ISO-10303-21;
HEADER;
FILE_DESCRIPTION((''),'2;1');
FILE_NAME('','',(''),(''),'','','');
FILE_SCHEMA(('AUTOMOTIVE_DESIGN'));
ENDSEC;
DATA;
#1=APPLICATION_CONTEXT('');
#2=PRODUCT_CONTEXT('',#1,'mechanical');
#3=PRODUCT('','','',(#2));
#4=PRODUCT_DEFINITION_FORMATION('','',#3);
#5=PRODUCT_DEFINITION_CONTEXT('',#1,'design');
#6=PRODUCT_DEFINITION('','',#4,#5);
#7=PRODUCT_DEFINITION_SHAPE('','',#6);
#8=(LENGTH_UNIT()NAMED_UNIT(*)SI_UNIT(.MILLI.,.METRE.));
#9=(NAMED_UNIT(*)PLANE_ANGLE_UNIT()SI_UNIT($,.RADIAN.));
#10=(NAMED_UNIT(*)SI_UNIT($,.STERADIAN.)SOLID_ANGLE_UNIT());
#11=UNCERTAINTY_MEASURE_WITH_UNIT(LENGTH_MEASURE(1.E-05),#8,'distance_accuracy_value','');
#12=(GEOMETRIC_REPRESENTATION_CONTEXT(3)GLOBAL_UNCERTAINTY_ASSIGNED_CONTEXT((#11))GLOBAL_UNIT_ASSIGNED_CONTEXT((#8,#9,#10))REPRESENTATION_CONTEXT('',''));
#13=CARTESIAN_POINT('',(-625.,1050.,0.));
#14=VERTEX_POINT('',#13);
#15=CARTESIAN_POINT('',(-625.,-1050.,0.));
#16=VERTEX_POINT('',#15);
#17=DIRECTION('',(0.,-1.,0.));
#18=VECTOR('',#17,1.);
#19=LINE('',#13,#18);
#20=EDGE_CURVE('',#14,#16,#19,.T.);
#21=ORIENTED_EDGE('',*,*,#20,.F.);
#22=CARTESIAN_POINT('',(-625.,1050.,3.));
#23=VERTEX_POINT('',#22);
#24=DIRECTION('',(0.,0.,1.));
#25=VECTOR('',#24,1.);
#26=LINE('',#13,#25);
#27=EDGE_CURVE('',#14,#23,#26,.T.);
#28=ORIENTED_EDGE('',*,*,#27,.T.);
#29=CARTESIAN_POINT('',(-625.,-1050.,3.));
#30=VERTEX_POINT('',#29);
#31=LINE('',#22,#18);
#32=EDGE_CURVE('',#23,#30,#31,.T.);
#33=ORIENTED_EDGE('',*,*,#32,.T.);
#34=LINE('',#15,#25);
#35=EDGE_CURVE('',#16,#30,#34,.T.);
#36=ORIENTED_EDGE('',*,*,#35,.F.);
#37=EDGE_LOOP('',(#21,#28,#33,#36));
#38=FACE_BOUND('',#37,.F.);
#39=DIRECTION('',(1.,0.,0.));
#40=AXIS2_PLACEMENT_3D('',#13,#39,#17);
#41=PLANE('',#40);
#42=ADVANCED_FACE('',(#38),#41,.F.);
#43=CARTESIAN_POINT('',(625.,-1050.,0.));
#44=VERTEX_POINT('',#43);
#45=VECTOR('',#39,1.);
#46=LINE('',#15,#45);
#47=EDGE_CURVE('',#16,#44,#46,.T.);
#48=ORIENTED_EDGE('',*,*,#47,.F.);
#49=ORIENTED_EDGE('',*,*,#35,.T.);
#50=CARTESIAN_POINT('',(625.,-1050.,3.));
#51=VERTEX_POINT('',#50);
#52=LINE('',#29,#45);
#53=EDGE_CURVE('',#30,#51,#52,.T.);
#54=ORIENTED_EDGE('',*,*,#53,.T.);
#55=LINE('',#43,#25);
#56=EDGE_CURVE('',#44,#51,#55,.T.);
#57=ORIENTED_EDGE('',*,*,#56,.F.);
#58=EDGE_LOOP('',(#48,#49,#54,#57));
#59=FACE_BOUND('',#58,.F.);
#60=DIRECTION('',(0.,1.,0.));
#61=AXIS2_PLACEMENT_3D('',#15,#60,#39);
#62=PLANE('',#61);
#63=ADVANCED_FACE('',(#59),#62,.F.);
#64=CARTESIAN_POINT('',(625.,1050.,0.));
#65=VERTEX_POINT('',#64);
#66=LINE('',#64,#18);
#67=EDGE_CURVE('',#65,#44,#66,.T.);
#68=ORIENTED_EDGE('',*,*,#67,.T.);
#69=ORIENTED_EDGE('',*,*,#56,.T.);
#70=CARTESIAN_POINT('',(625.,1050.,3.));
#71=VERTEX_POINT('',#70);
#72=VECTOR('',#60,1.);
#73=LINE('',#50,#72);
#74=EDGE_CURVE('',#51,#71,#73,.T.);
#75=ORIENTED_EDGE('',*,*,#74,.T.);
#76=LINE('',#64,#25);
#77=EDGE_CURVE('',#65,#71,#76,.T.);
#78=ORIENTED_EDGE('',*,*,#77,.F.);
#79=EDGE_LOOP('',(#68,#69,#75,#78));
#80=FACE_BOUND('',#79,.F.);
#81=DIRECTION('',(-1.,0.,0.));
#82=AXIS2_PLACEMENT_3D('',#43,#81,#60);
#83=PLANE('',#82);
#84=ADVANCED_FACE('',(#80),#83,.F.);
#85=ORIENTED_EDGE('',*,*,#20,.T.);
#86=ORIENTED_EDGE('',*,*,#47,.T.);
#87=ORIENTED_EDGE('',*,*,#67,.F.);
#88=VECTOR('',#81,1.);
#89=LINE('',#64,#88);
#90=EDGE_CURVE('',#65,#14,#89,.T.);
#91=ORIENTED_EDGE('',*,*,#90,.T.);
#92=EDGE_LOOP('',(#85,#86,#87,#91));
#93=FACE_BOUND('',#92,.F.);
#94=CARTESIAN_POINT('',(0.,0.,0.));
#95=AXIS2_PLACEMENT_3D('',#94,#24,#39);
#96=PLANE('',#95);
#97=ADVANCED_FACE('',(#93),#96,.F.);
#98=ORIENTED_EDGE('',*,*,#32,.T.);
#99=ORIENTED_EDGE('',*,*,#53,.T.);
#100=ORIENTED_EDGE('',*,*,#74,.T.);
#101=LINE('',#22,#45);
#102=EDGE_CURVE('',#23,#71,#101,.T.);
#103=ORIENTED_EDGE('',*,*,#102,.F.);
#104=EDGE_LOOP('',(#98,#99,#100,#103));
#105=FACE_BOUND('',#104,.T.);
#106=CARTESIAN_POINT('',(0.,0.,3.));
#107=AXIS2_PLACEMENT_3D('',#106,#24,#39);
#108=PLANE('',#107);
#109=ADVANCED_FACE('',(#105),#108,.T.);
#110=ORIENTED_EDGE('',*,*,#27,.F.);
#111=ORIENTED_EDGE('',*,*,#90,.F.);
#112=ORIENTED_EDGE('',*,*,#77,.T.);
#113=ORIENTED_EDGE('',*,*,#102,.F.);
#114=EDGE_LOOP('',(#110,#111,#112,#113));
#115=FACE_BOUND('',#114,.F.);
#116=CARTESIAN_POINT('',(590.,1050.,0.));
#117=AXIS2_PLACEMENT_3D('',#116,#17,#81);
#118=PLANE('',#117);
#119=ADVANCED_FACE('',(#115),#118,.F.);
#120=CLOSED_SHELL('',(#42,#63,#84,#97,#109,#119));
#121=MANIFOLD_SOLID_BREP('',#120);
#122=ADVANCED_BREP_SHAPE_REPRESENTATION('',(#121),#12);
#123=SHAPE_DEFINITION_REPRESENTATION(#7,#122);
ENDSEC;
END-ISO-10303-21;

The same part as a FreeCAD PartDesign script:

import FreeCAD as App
import Part
import Sketcher

V = App.Vector
Q = App.Units.Quantity

doc = App.newDocument("Part")
params = doc.addObject("Spreadsheet::Sheet", "Params")
for row, (alias, value) in enumerate([
    ("sketch1_width", "1250 mm"),
    ("sketch1_height", "2100 mm"),
    ("pad1_length", "3 mm"),
], start=1):
    params.set(f"A{row}", alias)
    params.set(f"B{row}", "=" + value)
    params.setAlias(f"B{row}", alias)

body = doc.addObject("PartDesign::Body", "Body")

# Sketch on XY plane
sketch1 = doc.addObject("Sketcher::SketchObject", "Sketch")
body.addObject(sketch1)
sketch1.AttachmentSupport = (doc.XY_Plane, [""])
sketch1.MapMode = "FlatFace"
sketch1.addGeometry(Part.LineSegment(V(-625, 1050, 0), V(-625, -1050, 0)), False)
sketch1.addGeometry(Part.LineSegment(V(-625, -1050, 0), V(625, -1050, 0)), False)
sketch1.addGeometry(Part.LineSegment(V(625, -1050, 0), V(625, 1050, 0)), False)
sketch1.addGeometry(Part.LineSegment(V(625, 1050, 0), V(-625, 1050, 0)), False)
sketch1.addConstraint(Sketcher.Constraint("Coincident", 0, 2, 1, 1))
sketch1.addConstraint(Sketcher.Constraint("Coincident", 1, 2, 2, 1))
sketch1.addConstraint(Sketcher.Constraint("Coincident", 2, 2, 3, 1))
sketch1.addConstraint(Sketcher.Constraint("Coincident", 3, 2, 0, 1))
sketch1.addConstraint(Sketcher.Constraint("Vertical", 0))
sketch1.addConstraint(Sketcher.Constraint("Horizontal", 1))
sketch1.addConstraint(Sketcher.Constraint("Vertical", 2))
sketch1.addConstraint(Sketcher.Constraint("Horizontal", 3))
sketch1.addConstraint(Sketcher.Constraint("Symmetric", 0, 2, 2, 2, -1, 1))
sketch1.addConstraint(Sketcher.Constraint("DistanceX", 1, 1, 1, 2, Q("1250 mm")))
sketch1.addConstraint(Sketcher.Constraint("DistanceY", 0, 2, 0, 1, Q("2100 mm")))
sketch1.setExpression("Constraints[9]", "Params.sketch1_width")
sketch1.setExpression("Constraints[10]", "Params.sketch1_height")
pad1 = doc.addObject("PartDesign::Pad", "Pad")
body.addObject(pad1)
pad1.Profile = sketch1
pad1.setExpression("Length", "Params.pad1_length")

doc.recompute()
